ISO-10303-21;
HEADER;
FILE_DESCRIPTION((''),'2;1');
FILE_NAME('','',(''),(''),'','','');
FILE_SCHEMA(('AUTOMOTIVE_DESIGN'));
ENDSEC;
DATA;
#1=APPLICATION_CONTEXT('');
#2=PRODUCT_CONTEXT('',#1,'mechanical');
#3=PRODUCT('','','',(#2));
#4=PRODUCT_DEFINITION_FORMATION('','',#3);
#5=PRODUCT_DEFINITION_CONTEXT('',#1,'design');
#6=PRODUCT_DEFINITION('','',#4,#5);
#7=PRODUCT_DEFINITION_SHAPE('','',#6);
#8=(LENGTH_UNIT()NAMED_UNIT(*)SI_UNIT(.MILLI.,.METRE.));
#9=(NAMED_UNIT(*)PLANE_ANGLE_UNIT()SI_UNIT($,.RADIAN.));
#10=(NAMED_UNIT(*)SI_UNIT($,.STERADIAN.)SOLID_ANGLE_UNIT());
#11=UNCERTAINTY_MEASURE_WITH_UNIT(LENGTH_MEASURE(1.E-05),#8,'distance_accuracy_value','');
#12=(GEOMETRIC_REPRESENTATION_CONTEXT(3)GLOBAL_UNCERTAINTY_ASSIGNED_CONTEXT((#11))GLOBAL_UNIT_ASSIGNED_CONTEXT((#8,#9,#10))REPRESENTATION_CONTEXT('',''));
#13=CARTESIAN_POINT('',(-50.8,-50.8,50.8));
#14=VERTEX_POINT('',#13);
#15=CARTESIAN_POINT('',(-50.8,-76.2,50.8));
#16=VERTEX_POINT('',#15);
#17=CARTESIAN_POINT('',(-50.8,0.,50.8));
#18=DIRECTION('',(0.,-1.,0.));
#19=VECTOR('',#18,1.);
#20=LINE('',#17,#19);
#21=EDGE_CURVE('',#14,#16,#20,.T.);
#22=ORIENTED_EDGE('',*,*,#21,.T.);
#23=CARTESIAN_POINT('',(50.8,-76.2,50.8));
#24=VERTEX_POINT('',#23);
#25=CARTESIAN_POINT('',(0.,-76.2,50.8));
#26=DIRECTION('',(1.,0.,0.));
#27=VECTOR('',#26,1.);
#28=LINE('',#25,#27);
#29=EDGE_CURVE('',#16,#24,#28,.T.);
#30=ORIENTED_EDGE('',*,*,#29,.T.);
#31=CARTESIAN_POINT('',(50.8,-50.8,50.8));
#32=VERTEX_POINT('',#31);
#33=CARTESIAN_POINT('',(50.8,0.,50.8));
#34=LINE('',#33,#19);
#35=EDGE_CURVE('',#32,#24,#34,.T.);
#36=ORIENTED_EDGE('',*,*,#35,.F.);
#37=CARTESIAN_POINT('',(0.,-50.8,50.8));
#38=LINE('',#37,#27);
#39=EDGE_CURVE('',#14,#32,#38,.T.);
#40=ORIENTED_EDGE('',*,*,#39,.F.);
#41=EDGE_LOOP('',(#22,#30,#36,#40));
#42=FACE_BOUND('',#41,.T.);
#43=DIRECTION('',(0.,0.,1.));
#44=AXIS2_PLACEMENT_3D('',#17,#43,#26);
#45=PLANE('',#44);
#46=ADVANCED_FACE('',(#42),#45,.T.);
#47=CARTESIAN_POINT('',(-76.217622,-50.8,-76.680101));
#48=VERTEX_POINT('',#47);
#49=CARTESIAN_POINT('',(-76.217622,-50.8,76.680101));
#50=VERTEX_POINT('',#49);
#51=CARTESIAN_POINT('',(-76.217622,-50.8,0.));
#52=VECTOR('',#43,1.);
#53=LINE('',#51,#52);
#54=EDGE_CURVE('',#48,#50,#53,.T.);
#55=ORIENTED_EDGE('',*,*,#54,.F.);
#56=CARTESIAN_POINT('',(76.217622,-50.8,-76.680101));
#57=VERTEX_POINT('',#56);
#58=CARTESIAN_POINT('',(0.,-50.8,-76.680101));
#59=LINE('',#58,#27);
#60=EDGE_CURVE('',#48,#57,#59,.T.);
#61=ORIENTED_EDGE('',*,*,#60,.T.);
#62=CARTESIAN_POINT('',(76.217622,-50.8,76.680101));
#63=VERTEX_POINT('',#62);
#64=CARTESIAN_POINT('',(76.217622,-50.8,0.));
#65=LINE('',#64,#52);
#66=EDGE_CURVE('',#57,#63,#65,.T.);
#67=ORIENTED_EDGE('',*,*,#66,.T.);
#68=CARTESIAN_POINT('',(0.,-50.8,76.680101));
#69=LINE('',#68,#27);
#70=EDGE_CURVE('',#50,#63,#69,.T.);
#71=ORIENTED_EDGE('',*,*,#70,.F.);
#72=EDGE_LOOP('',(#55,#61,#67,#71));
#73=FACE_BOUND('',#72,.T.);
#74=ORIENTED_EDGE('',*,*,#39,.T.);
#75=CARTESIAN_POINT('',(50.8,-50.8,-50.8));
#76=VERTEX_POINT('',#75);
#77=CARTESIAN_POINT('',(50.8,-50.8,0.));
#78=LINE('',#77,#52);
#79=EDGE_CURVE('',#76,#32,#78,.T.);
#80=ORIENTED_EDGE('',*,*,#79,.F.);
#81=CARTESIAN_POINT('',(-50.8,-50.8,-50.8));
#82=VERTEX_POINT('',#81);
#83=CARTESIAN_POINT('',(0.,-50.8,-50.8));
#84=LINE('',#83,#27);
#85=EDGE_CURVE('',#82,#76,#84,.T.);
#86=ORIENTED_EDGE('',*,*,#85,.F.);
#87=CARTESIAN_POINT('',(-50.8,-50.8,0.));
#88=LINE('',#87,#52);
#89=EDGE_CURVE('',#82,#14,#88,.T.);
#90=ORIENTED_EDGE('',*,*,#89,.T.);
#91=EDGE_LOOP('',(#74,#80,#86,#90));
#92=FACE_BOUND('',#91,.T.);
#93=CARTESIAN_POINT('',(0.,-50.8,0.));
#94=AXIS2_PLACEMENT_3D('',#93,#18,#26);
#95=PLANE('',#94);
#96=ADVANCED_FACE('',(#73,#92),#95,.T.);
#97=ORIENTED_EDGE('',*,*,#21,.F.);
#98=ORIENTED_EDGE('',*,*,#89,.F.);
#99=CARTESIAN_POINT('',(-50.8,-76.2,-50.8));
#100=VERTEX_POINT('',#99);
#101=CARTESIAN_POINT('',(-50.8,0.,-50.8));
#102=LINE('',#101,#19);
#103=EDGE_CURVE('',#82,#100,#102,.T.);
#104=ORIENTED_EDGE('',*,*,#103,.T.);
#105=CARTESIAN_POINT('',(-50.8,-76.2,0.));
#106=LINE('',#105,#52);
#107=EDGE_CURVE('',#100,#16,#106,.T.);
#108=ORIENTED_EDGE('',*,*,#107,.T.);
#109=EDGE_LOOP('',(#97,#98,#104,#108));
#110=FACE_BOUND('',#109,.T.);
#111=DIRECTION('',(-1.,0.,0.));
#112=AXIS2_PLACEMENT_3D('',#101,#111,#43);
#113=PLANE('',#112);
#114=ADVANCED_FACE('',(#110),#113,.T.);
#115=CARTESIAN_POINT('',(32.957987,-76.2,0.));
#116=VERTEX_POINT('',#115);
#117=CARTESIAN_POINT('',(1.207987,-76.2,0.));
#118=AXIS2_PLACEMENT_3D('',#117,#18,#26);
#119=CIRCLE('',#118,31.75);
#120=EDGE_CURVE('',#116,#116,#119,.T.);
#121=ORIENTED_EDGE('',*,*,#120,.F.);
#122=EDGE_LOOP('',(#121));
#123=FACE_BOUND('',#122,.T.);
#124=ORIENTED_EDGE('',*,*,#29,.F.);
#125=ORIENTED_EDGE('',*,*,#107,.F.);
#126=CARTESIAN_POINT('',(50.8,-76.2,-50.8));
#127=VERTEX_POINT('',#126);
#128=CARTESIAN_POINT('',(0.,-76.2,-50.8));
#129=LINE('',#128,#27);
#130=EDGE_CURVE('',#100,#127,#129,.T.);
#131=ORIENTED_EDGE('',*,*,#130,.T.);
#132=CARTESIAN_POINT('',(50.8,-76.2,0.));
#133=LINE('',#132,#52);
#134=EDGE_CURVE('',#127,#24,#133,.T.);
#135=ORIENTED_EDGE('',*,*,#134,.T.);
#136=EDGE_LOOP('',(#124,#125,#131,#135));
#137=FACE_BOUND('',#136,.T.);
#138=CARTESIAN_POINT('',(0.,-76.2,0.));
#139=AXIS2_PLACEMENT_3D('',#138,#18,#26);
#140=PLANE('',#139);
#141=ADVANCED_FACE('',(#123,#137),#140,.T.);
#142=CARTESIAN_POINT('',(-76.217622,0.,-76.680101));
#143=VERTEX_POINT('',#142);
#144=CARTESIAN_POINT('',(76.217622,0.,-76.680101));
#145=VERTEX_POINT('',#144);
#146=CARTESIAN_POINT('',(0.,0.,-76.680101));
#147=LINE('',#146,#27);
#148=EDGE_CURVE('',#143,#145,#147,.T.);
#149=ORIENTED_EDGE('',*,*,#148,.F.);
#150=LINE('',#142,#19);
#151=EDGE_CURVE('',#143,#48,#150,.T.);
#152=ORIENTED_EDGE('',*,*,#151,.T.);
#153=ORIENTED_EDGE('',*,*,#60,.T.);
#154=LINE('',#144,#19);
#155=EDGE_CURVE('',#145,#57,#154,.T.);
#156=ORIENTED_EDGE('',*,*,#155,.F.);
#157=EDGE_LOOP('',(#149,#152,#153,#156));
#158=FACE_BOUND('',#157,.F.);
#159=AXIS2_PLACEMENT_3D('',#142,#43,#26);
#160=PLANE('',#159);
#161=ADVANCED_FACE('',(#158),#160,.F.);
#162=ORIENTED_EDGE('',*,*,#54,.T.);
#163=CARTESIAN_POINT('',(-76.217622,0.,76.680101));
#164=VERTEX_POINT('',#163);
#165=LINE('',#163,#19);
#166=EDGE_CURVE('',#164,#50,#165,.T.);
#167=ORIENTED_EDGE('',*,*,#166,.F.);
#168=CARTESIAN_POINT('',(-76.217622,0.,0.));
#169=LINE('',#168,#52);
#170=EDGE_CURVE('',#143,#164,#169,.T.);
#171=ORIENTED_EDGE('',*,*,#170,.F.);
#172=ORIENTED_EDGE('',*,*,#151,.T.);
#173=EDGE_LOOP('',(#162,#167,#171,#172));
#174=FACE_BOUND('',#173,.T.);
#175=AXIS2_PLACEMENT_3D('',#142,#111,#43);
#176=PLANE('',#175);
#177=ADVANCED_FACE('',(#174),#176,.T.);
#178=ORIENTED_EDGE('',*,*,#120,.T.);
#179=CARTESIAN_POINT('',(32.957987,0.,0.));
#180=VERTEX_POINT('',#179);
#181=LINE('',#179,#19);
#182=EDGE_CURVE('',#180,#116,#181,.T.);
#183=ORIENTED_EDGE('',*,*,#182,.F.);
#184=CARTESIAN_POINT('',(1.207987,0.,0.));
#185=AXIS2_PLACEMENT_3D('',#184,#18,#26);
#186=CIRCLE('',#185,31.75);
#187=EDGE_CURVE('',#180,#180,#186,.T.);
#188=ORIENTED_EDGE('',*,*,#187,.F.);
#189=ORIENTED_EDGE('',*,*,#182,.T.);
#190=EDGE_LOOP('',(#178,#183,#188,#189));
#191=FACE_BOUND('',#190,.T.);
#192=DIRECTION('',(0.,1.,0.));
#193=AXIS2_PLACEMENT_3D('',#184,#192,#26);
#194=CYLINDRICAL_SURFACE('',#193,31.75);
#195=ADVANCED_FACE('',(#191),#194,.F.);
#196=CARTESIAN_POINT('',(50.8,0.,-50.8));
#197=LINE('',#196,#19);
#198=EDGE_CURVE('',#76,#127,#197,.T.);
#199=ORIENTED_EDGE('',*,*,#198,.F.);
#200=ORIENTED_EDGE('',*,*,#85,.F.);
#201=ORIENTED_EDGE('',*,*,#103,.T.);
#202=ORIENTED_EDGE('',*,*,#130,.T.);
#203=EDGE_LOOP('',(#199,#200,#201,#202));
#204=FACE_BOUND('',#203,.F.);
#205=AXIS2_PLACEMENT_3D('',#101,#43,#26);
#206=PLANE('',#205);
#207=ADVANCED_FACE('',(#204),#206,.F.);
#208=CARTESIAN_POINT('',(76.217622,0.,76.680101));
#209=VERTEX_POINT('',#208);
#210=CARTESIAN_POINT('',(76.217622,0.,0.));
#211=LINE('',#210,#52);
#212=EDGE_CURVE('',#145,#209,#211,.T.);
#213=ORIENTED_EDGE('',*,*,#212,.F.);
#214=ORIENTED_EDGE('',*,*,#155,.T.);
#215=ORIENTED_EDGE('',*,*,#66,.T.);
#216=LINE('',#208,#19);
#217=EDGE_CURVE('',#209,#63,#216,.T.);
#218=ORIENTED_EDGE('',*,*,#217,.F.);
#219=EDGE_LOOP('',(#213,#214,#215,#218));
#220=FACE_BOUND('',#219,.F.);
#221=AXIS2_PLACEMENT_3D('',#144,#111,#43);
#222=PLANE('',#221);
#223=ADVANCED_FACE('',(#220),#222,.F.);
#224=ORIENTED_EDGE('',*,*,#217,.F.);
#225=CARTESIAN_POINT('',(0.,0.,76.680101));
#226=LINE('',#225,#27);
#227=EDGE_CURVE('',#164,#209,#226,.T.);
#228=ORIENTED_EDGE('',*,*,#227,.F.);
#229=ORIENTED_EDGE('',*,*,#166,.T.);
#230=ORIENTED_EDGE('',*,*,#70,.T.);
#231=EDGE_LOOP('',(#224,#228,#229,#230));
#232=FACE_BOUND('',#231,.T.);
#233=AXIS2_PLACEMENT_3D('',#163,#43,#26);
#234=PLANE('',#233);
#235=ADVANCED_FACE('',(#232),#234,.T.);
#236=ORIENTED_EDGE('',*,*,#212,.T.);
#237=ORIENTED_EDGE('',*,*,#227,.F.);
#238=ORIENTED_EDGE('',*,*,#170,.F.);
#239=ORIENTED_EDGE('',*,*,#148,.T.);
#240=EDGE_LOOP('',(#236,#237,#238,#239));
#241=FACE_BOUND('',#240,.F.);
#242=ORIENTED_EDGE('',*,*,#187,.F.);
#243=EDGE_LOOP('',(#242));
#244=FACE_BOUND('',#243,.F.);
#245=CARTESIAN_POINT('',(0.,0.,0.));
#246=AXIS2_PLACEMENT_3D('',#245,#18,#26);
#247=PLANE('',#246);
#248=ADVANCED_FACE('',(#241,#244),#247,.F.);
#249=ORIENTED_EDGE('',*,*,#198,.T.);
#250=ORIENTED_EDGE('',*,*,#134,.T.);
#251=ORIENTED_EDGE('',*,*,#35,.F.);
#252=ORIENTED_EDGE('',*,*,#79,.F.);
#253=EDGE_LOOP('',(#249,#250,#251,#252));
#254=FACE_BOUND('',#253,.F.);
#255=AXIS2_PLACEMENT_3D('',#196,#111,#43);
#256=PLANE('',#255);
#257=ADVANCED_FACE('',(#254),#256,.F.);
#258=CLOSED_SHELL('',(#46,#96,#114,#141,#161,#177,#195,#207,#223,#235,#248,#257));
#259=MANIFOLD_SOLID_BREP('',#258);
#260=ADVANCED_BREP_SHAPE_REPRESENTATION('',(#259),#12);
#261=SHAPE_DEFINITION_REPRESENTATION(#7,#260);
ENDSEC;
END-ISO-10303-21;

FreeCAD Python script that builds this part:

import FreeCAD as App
import Part
import Sketcher
from FreeCAD import Vector
Q = App.Units.Quantity


def add_polygon(sketch, points):
    """Adds a closed chain of lines whose ends are joined by coincident constraints."""
    first, n = sketch.GeometryCount, len(points)
    for a, b in zip(points, points[1:] + points[:1]):
        sketch.addGeometry(Part.LineSegment(App.Vector(*a, 0), App.Vector(*b, 0)), False)
    for i in range(n):
        sketch.addConstraint(Sketcher.Constraint("Coincident", first + i, 2, first + (i + 1) % n, 1))

doc = App.newDocument("Part")
body = doc.addObject("PartDesign::Body", "Body")

# Sketch on XZ plane
sketch1 = doc.addObject("Sketcher::SketchObject", "Sketch")
body.addObject(sketch1)
sketch1.AttachmentSupport = (doc.XZ_Plane, [""])
sketch1.MapMode = "FlatFace"
add_polygon(sketch1, [(-51, 51), (-51, -51), (51, -51), (51, 51)])  # lines 0-3
sketch1.addGeometry(Part.Circle(Vector(1, 0, 0), Vector(0, 0, 1), 32), False)  # 4
sketch1.addConstraint(Sketcher.Constraint("Vertical", 0))
sketch1.addConstraint(Sketcher.Constraint("Horizontal", 1))
sketch1.addConstraint(Sketcher.Constraint("Vertical", 2))
sketch1.addConstraint(Sketcher.Constraint("Horizontal", 3))
sketch1.addConstraint(Sketcher.Constraint("Symmetric", 0, 2, 2, 2, -1, 1))
sketch1.addConstraint(Sketcher.Constraint("PointOnObject", 4, 3, -1))
sketch1.addConstraint(Sketcher.Constraint("Equal", 3, 0))
sketch1.addConstraint(Sketcher.Constraint("Diameter", 4, Q("2.5 in")))
sketch1.addConstraint(Sketcher.Constraint("DistanceX", 1, 1, 1, 2, Q("4 in")))
sketch1.addConstraint(Sketcher.Constraint("DistanceX", -1, 1, 4, 3, Q("1.207987 mm")))
pad1 = doc.addObject("PartDesign::Pad", "Pad")
body.addObject(pad1)
pad1.Profile = sketch1
pad1.Length = Q("3 in")

# Sketch on XZ plane
sketch2 = doc.addObject("Sketcher::SketchObject", "Sketch001")
body.addObject(sketch2)
sketch2.AttachmentSupport = (doc.XZ_Plane, [""])
sketch2.MapMode = "FlatFace"
add_polygon(sketch2, [(-76, 77), (-76, -77), (76, -77), (76, 77)])  # lines 0-3
add_polygon(sketch2, [(51, -51), (-51, -51), (-51, 51), (51, 51)])  # lines 4-7
sketch2.addConstraint(Sketcher.Constraint("Vertical", 0))
sketch2.addConstraint(Sketcher.Constraint("Horizontal", 1))
sketch2.addConstraint(Sketcher.Constraint("Vertical", 2))
sketch2.addConstraint(Sketcher.Constraint("Horizontal", 3))
sketch2.addConstraint(Sketcher.Constraint("Horizontal", 4))
sketch2.addConstraint(Sketcher.Constraint("Vertical", 5))
sketch2.addConstraint(Sketcher.Constraint("Horizontal", 6))
sketch2.addConstraint(Sketcher.Constraint("Vertical", 7))
sketch2.addConstraint(Sketcher.Constraint("Symmetric", 0, 2, 2, 2, -1, 1))
sketch2.addConstraint(Sketcher.Constraint("Symmetric", 4, 2, 6, 2, -1, 1))
sketch2.addConstraint(Sketcher.Constraint("Equal", 6, 5))
sketch2.addConstraint(Sketcher.Constraint("DistanceX", 4, 2, 4, 1, Q("4 in")))
sketch2.addConstraint(Sketcher.Constraint("DistanceY", 0, 2, 0, 1, Q("153.360202 mm")))
sketch2.addConstraint(Sketcher.Constraint("DistanceX", 1, 1, 1, 2, Q("152.435244 mm")))
pad2 = doc.addObject("PartDesign::Pad", "Pad001")
body.addObject(pad2)
pad2.Profile = sketch2
pad2.Length = Q("2 in")

doc.recompute()
